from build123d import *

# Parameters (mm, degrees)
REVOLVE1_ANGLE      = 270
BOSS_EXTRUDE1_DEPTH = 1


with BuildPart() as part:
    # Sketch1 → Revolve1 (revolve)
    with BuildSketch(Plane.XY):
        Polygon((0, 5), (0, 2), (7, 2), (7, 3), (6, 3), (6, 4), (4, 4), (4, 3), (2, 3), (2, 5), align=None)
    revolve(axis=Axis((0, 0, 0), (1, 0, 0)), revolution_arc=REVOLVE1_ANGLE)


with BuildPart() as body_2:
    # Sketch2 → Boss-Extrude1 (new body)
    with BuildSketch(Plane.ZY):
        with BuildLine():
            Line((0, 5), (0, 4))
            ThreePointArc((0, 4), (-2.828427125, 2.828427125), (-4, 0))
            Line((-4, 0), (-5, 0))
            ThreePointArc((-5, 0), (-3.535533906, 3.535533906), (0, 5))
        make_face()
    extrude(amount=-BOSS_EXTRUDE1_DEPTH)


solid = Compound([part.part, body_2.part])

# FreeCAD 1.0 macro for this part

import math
import FreeCAD as App
import Part
import Sketcher

doc = App.newDocument("Part")
body = doc.addObject("PartDesign::Body", "Body")

sketch1 = body.newObject("Sketcher::SketchObject", "Sketch")
sketch1.AttachmentSupport = (doc.getObject("XY_Plane"), [""])
sketch1.MapMode = "FlatFace"
sketch1.addGeometry([
    Part.LineSegment(App.Vector(0, 5, 0), App.Vector(0, 2, 0)),
    Part.LineSegment(App.Vector(0, 2, 0), App.Vector(7, 2, 0)),
    Part.LineSegment(App.Vector(7, 2, 0), App.Vector(7, 3, 0)),
    Part.LineSegment(App.Vector(7, 3, 0), App.Vector(6, 3, 0)),
    Part.LineSegment(App.Vector(6, 3, 0), App.Vector(6, 4, 0)),
    Part.LineSegment(App.Vector(6, 4, 0), App.Vector(4, 4, 0)),
    Part.LineSegment(App.Vector(4, 4, 0), App.Vector(4, 3, 0)),
    Part.LineSegment(App.Vector(4, 3, 0), App.Vector(2, 3, 0)),
    Part.LineSegment(App.Vector(2, 3, 0), App.Vector(2, 5, 0)),
    Part.LineSegment(App.Vector(2, 5, 0), App.Vector(0, 5, 0)),
], False)
sketch1.addConstraint([
    Sketcher.Constraint("Coincident", 0, 2, 1, 1),
    Sketcher.Constraint("Coincident", 1, 2, 2, 1),
    Sketcher.Constraint("Coincident", 2, 2, 3, 1),
    Sketcher.Constraint("Coincident", 3, 2, 4, 1),
    Sketcher.Constraint("Coincident", 4, 2, 5, 1),
    Sketcher.Constraint("Coincident", 5, 2, 6, 1),
    Sketcher.Constraint("Coincident", 6, 2, 7, 1),
    Sketcher.Constraint("Coincident", 7, 2, 8, 1),
    Sketcher.Constraint("Coincident", 8, 2, 9, 1),
    Sketcher.Constraint("Coincident", 9, 2, 0, 1),
    Sketcher.Constraint("Vertical", 0),
    Sketcher.Constraint("Horizontal", 1),
    Sketcher.Constraint("Vertical", 2),
    Sketcher.Constraint("Horizontal", 3),
    Sketcher.Constraint("Vertical", 4),
    Sketcher.Constraint("Horizontal", 5),
    Sketcher.Constraint("Vertical", 6),
    Sketcher.Constraint("Horizontal", 7),
    Sketcher.Constraint("Vertical", 8),
    Sketcher.Constraint("Horizontal", 9),
    Sketcher.Constraint("PointOnObject", 0, 2, -2),
    Sketcher.Constraint("Horizontal", 3, 2, 6, 2),
    Sketcher.Constraint("Equal", 5, 7),
    Sketcher.Constraint("Equal", 7, 9),
    Sketcher.Constraint("Equal", 3, 2),
    Sketcher.Constraint("Equal", 2, 4),
    Sketcher.Constraint("Equal", 9, 8),
    Sketcher.Constraint("DistanceX", 1, 1, 1, 2, 7.0),
    Sketcher.Constraint("DistanceX", 3, 2, 3, 1, 1.0),
    Sketcher.Constraint("DistanceY", -1, 1, 0, 2, 2.0),
])
revolution = body.newObject("PartDesign::Revolution", "Revolution")
revolution.Profile = sketch1
revolution.ReferenceAxis = (sketch1, ["H_Axis"])
revolution.Angle = 270
body2 = doc.addObject("PartDesign::Body", "Body001")

sketch2 = body2.newObject("Sketcher::SketchObject", "Sketch001")
sketch2.AttachmentSupport = (doc.getObject("YZ_Plane001"), [""])
sketch2.MapMode = "FlatFace"
sketch2.addGeometry([
    Part.LineSegment(App.Vector(4, 0, 0), App.Vector(5, 0, 0)),
    Part.ArcOfCircle(Part.Circle(App.Vector(0, 0, 0), App.Vector(0, 0, 1), 5), math.radians(-90), math.radians(0)),
    Part.LineSegment(App.Vector(0, -5, 0), App.Vector(0, -4, 0)),
    Part.ArcOfCircle(Part.Circle(App.Vector(0, 0, 0), App.Vector(0, 0, 1), 4), math.radians(-90), math.radians(0)),
], False)
sketch2.addConstraint([
    Sketcher.Constraint("Coincident", 0, 2, 1, 2),
    Sketcher.Constraint("Coincident", 1, 1, 2, 1),
    Sketcher.Constraint("Coincident", 2, 2, 3, 1),
    Sketcher.Constraint("Coincident", 3, 2, 0, 1),
    Sketcher.Constraint("Horizontal", 0),
    Sketcher.Constraint("Vertical", 2),
    Sketcher.Constraint("Coincident", 1, 3, -1, 1),
    Sketcher.Constraint("Coincident", 3, 3, -1, 1),
    Sketcher.Constraint("PointOnObject", 0, 2, -1),
    Sketcher.Constraint("PointOnObject", 1, 1, -2),
    Sketcher.Constraint("Radius", 1, 5.0),
    Sketcher.Constraint("Radius", 3, 4.0),
])
pad1 = body2.newObject("PartDesign::Pad", "Pad")
pad1.Profile = sketch2
pad1.Length = 1

doc.recompute()
